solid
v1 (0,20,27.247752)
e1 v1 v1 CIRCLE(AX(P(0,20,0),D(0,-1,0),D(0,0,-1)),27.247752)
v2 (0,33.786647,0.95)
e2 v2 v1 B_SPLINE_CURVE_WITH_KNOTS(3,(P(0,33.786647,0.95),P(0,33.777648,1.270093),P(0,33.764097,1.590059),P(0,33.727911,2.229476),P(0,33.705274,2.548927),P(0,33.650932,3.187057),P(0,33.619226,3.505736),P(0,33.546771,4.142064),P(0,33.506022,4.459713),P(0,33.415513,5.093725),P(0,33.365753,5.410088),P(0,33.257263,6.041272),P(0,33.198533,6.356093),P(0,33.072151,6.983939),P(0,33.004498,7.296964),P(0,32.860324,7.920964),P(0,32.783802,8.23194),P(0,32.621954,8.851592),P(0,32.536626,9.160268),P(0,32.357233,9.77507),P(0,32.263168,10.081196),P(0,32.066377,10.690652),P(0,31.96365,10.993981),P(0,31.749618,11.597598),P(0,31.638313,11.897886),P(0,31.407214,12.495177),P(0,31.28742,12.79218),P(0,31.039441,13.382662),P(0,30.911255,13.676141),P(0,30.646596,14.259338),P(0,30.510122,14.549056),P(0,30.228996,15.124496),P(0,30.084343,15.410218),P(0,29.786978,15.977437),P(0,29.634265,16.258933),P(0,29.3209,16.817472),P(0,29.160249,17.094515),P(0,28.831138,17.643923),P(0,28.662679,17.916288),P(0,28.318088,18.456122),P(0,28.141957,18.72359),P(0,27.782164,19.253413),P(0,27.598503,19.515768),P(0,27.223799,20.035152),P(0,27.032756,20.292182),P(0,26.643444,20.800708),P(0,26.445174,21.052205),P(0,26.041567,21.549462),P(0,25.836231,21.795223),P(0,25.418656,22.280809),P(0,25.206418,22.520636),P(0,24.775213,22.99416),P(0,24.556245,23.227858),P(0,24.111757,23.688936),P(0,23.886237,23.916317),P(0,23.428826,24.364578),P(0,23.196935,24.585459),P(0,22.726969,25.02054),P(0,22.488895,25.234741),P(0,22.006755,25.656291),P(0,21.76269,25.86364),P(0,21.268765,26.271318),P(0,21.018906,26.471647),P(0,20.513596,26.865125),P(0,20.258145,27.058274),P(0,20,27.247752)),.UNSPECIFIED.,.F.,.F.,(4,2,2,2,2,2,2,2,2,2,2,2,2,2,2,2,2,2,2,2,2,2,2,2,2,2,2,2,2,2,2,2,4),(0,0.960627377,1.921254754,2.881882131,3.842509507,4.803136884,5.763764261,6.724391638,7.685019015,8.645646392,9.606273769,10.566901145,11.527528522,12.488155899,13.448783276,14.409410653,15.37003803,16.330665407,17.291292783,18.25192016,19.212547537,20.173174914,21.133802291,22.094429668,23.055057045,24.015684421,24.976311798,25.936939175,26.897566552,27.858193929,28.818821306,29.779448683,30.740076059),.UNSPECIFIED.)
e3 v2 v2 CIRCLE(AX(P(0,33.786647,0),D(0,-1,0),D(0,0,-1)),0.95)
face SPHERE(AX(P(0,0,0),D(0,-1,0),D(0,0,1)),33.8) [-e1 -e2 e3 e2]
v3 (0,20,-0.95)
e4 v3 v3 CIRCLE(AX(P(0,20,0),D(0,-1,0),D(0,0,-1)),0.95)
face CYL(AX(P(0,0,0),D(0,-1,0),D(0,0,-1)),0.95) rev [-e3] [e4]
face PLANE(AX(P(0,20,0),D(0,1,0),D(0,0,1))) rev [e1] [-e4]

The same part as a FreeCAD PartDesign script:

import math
import FreeCAD as App
import Part
import Sketcher
from FreeCAD import Vector
Q = App.Units.Quantity

doc = App.newDocument("Part")
body = doc.addObject("PartDesign::Body", "Body")

# Sketch on YZ plane
sketch1 = body.newObject("Sketcher::SketchObject", "Sketch")
sketch1.AttachmentSupport = (doc.getObject("YZ_Plane"), [""])
sketch1.MapMode = "FlatFace"
sketch1.addGeometry([
    Part.LineSegment(Vector(20, 1, 0), Vector(34, 1, 0)),
    Part.ArcOfCircle(Part.Circle(Vector(0, 0, 0), Vector(0, 0, 1), 34), math.radians(2), math.radians(54)),
    Part.LineSegment(Vector(20, 27, 0), Vector(20, 1, 0)),
], False)
sketch1.addConstraint([
    Sketcher.Constraint("Coincident", 0, 2, 1, 1),
    Sketcher.Constraint("Coincident", 1, 2, 2, 1),
    Sketcher.Constraint("Coincident", 2, 2, 0, 1),
    Sketcher.Constraint("Horizontal", 0),
    Sketcher.Constraint("Vertical", 2),
    Sketcher.Constraint("Coincident", 1, 3, -1, 1),
    Sketcher.Constraint("Radius", 1, Q("33.8 mm")),
    Sketcher.Constraint("DistanceX", -1, 1, 1, 2, Q("20 mm")),
    Sketcher.Constraint("DistanceY", -1, 1, 0, 2, Q("0.95 mm")),
])
revolution = body.newObject("PartDesign::Revolution", "Revolution")
revolution.Profile = sketch1
revolution.ReferenceAxis = (sketch1, ["H_Axis"])
revolution.Angle = 360

doc.recompute()
